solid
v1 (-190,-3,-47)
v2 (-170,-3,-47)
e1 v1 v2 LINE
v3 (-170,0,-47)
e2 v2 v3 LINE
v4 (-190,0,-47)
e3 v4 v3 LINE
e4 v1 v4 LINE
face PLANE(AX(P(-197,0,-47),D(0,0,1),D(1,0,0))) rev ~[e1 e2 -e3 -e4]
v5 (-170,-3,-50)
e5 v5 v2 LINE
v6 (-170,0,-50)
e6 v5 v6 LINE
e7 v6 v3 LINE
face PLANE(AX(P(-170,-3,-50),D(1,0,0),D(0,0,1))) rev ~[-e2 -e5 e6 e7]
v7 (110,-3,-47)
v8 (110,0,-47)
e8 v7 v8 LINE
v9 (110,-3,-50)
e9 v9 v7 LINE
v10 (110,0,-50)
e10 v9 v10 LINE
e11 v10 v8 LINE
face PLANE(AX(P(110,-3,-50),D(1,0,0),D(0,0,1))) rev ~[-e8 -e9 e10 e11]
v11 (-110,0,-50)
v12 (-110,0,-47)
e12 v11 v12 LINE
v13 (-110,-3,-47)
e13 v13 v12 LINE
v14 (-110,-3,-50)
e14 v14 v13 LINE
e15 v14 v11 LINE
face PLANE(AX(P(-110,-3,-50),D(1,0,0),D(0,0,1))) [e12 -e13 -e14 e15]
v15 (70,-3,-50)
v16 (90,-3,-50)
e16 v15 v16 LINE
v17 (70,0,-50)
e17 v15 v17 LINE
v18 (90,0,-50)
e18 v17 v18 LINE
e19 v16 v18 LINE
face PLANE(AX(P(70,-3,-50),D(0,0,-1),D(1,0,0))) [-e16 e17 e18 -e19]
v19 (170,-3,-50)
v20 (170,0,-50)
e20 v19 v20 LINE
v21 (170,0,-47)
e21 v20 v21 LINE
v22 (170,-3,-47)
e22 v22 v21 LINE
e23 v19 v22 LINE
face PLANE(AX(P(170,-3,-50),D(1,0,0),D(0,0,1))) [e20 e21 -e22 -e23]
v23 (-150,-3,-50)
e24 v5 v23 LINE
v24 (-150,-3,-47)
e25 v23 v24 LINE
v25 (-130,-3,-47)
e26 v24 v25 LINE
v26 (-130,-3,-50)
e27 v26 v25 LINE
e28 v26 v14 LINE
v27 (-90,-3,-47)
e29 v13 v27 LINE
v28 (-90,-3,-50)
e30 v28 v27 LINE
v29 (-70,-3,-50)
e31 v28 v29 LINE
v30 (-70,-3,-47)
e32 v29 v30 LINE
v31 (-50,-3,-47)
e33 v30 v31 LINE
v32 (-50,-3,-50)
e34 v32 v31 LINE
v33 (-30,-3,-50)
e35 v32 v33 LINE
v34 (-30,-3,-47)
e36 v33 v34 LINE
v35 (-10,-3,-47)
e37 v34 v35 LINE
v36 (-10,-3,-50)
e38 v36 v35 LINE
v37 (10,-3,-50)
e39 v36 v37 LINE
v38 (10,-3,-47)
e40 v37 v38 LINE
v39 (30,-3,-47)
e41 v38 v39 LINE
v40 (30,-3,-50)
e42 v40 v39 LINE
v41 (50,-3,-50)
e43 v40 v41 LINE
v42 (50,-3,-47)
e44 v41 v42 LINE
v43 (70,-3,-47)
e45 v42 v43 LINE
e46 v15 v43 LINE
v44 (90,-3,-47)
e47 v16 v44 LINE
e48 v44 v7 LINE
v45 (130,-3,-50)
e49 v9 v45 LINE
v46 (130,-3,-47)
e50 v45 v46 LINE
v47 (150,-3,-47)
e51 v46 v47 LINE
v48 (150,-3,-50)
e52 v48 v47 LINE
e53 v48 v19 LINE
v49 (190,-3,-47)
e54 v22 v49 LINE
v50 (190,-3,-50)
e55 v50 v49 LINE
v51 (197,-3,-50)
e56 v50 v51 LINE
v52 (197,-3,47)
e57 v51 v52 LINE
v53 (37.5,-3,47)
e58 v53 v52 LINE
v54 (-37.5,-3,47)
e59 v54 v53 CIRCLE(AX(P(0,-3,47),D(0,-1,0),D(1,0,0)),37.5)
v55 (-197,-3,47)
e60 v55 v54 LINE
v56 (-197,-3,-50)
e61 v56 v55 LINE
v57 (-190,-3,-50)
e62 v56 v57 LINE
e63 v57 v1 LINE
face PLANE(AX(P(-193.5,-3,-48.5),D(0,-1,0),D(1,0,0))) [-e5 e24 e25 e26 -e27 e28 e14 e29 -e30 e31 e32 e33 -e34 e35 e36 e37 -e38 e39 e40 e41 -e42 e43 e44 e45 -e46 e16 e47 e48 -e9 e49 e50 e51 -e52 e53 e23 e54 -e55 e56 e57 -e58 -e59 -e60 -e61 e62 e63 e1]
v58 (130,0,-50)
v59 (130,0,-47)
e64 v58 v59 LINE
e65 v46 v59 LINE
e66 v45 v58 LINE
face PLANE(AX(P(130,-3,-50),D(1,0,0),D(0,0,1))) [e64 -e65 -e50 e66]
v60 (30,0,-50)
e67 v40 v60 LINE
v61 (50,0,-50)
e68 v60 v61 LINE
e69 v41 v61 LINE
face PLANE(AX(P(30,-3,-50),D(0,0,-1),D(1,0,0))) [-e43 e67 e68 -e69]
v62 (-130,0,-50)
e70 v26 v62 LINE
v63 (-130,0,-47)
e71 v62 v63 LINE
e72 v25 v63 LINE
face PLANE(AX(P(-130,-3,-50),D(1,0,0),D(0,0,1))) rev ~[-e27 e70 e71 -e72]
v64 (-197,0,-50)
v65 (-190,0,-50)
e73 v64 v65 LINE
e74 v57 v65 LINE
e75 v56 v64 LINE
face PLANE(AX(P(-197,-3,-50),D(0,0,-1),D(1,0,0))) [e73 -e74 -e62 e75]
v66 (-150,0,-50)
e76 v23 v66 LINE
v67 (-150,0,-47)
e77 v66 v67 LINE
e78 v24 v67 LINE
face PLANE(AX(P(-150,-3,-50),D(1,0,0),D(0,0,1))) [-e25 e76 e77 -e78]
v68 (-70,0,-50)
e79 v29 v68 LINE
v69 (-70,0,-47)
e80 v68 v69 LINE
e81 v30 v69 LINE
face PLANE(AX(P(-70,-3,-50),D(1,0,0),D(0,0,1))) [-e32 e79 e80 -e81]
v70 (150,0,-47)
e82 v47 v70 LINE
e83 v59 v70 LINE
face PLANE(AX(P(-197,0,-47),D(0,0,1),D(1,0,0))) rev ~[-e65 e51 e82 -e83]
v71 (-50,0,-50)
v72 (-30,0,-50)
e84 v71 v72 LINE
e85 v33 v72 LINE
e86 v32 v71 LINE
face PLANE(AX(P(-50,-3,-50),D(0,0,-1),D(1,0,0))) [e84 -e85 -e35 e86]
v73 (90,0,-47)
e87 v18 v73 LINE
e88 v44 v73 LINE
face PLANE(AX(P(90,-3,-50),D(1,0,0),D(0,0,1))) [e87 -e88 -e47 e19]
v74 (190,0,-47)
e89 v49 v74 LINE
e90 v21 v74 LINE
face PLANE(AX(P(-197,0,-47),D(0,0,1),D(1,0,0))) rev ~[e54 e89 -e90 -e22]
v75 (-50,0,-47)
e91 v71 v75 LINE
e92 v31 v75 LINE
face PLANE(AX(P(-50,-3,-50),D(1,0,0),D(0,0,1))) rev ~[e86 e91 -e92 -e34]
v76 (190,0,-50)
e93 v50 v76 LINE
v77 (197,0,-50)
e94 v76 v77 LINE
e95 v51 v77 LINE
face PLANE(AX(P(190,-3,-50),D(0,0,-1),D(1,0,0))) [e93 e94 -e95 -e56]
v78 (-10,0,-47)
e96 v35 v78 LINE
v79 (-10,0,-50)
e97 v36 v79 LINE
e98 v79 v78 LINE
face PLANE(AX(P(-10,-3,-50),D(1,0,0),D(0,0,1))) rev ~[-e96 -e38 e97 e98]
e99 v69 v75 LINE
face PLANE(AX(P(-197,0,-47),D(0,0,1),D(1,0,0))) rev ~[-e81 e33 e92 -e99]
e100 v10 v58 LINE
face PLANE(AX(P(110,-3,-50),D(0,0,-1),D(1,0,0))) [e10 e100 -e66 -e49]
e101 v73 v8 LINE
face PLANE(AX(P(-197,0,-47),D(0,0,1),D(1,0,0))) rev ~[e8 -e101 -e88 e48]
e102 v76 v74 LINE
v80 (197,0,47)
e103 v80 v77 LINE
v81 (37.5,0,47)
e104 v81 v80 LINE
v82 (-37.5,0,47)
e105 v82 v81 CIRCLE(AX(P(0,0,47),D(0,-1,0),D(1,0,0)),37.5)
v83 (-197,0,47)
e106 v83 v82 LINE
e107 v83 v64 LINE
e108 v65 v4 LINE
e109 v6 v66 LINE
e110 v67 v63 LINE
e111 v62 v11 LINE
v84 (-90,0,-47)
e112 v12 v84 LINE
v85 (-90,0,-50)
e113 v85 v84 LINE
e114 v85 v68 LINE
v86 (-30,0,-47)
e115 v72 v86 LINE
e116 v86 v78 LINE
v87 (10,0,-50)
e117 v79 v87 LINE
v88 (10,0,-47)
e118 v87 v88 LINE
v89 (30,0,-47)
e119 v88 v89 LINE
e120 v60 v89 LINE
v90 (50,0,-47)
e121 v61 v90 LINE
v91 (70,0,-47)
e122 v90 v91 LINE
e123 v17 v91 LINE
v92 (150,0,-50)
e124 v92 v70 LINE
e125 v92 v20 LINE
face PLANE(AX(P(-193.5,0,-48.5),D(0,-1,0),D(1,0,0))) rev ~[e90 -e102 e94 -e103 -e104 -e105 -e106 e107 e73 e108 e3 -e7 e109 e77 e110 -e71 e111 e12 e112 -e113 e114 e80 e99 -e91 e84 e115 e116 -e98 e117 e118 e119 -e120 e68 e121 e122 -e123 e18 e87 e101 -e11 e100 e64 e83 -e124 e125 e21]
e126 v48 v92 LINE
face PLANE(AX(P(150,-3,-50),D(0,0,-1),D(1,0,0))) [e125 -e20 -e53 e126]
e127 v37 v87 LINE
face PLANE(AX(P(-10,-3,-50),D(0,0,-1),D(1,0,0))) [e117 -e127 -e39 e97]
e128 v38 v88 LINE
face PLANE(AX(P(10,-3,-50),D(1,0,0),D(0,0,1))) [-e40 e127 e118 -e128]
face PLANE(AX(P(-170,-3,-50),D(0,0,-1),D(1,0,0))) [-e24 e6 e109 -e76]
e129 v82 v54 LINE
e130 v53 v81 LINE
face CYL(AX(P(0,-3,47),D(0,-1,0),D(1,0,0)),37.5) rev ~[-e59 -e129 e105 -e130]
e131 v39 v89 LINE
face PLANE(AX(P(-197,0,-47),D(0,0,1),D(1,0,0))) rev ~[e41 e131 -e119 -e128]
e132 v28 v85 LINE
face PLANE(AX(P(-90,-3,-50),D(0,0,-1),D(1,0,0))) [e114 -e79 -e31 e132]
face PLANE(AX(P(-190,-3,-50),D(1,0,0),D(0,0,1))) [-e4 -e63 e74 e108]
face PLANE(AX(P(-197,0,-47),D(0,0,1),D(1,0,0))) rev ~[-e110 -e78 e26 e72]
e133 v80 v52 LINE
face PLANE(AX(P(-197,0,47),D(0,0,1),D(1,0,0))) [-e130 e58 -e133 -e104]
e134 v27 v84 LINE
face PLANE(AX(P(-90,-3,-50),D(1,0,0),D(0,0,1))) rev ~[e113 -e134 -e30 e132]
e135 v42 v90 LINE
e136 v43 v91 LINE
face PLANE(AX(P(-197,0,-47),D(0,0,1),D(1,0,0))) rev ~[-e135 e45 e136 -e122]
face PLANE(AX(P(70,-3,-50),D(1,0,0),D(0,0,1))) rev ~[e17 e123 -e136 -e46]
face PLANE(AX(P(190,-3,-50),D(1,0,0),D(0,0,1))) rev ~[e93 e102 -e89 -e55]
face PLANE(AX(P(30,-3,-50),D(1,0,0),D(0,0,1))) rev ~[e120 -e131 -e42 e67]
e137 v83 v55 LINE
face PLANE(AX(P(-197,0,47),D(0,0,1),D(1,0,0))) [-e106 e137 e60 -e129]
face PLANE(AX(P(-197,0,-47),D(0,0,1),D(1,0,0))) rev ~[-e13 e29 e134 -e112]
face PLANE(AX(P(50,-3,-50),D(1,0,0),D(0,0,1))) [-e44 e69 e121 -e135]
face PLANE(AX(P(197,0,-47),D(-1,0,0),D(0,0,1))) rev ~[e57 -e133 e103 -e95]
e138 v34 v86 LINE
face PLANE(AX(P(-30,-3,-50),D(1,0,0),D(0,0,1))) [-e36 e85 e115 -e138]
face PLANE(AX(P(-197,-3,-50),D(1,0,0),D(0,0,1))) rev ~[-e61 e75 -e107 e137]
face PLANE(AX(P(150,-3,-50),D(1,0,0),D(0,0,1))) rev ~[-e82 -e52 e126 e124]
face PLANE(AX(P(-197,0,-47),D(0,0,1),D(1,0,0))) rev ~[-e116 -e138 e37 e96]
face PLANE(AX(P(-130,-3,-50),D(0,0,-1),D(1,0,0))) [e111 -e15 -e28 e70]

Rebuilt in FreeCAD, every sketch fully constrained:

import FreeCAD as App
import Part
import Sketcher
Q = App.Units.Quantity

doc = App.newDocument("Part")
body = doc.addObject("PartDesign::Body", "Body")

# Sketch on XZ plane
sketch1 = body.newObject("Sketcher::SketchObject", "Sketch")
sketch1.AttachmentSupport = (doc.getObject("XZ_Plane"), [""])
sketch1.MapMode = "FlatFace"
sketch1.addGeometry(Part.LineSegment(App.Vector(-197, 47, 0), App.Vector(-197, -47, 0)), False)
sketch1.addGeometry(Part.LineSegment(App.Vector(-197, -47, 0), App.Vector(197, -47, 0)), False)
sketch1.addGeometry(Part.LineSegment(App.Vector(197, -47, 0), App.Vector(197, 47, 0)), False)
sketch1.addGeometry(Part.LineSegment(App.Vector(197, 47, 0), App.Vector(-197, 47, 0)), False)
sketch1.addConstraint(Sketcher.Constraint("Coincident", 0, 2, 1, 1))
sketch1.addConstraint(Sketcher.Constraint("Coincident", 1, 2, 2, 1))
sketch1.addConstraint(Sketcher.Constraint("Coincident", 2, 2, 3, 1))
sketch1.addConstraint(Sketcher.Constraint("Coincident", 3, 2, 0, 1))
sketch1.addConstraint(Sketcher.Constraint("Vertical", 0))
sketch1.addConstraint(Sketcher.Constraint("Horizontal", 1))
sketch1.addConstraint(Sketcher.Constraint("Vertical", 2))
sketch1.addConstraint(Sketcher.Constraint("Horizontal", 3))
sketch1.addConstraint(Sketcher.Constraint("Symmetric", 0, 2, 2, 2, -1, 1))
sketch1.addConstraint(Sketcher.Constraint("DistanceX", 1, 1, 1, 2, Q("394 mm")))
sketch1.addConstraint(Sketcher.Constraint("DistanceY", 0, 2, 0, 1, Q("94 mm")))
pad1 = body.newObject("PartDesign::Pad", "Pad")
pad1.Profile = sketch1
pad1.Length = 3

# Sketch on XZ plane
sketch2 = body.newObject("Sketcher::SketchObject", "Sketch001")
sketch2.AttachmentSupport = (doc.getObject("XZ_Plane"), [""])
sketch2.MapMode = "FlatFace"
sketch2.AttachmentOffset = App.Placement(App.Vector(0, 0, 3), App.Rotation())
sketch2.addGeometry(Part.LineSegment(App.Vector(-197, -47, 0), App.Vector(-197, -50, 0)), False)
sketch2.addGeometry(Part.LineSegment(App.Vector(-197, -50, 0), App.Vector(-190, -50, 0)), False)
sketch2.addGeometry(Part.LineSegment(App.Vector(-190, -50, 0), App.Vector(-190, -47, 0)), False)
sketch2.addGeometry(Part.LineSegment(App.Vector(-190, -47, 0), App.Vector(-197, -47, 0)), False)
sketch2.addGeometry(Part.LineSegment(App.Vector(190, -47, 0), App.Vector(190, -50, 0)), False)
sketch2.addGeometry(Part.LineSegment(App.Vector(190, -50, 0), App.Vector(197, -50, 0)), False)
sketch2.addGeometry(Part.LineSegment(App.Vector(197, -50, 0), App.Vector(197, -47, 0)), False)
sketch2.addGeometry(Part.LineSegment(App.Vector(197, -47, 0), App.Vector(190, -47, 0)), False)
sketch2.addGeometry(Part.LineSegment(App.Vector(-170, -47, 0), App.Vector(-170, -50, 0)), False)
sketch2.addGeometry(Part.LineSegment(App.Vector(-170, -50, 0), App.Vector(-150, -50, 0)), False)
sketch2.addGeometry(Part.LineSegment(App.Vector(-150, -50, 0), App.Vector(-150, -47, 0)), False)
sketch2.addGeometry(Part.LineSegment(App.Vector(-150, -47, 0), App.Vector(-170, -47, 0)), False)
sketch2.addGeometry(Part.LineSegment(App.Vector(-130, -47, 0), App.Vector(-130, -50, 0)), False)
sketch2.addGeometry(Part.LineSegment(App.Vector(-130, -50, 0), App.Vector(-110, -50, 0)), False)
sketch2.addGeometry(Part.LineSegment(App.Vector(-110, -50, 0), App.Vector(-110, -47, 0)), False)
sketch2.addGeometry(Part.LineSegment(App.Vector(-110, -47, 0), App.Vector(-130, -47, 0)), False)
sketch2.addGeometry(Part.LineSegment(App.Vector(-90, -47, 0), App.Vector(-90, -50, 0)), False)
sketch2.addGeometry(Part.LineSegment(App.Vector(-90, -50, 0), App.Vector(-70, -50, 0)), False)
sketch2.addGeometry(Part.LineSegment(App.Vector(-70, -50, 0), App.Vector(-70, -47, 0)), False)
sketch2.addGeometry(Part.LineSegment(App.Vector(-70, -47, 0), App.Vector(-90, -47, 0)), False)
sketch2.addGeometry(Part.LineSegment(App.Vector(-50, -47, 0), App.Vector(-50, -50, 0)), False)
sketch2.addGeometry(Part.LineSegment(App.Vector(-50, -50, 0), App.Vector(-30, -50, 0)), False)
sketch2.addGeometry(Part.LineSegment(App.Vector(-30, -50, 0), App.Vector(-30, -47, 0)), False)
sketch2.addGeometry(Part.LineSegment(App.Vector(-30, -47, 0), App.Vector(-50, -47, 0)), False)
sketch2.addGeometry(Part.LineSegment(App.Vector(-10, -47, 0), App.Vector(-10, -50, 0)), False)
sketch2.addGeometry(Part.LineSegment(App.Vector(-10, -50, 0), App.Vector(10, -50, 0)), False)
sketch2.addGeometry(Part.LineSegment(App.Vector(10, -50, 0), App.Vector(10, -47, 0)), False)
sketch2.addGeometry(Part.LineSegment(App.Vector(10, -47, 0), App.Vector(-10, -47, 0)), False)
sketch2.addGeometry(Part.LineSegment(App.Vector(30, -47, 0), App.Vector(30, -50, 0)), False)
sketch2.addGeometry(Part.LineSegment(App.Vector(30, -50, 0), App.Vector(50, -50, 0)), False)
sketch2.addGeometry(Part.LineSegment(App.Vector(50, -50, 0), App.Vector(50, -47, 0)), False)
sketch2.addGeometry(Part.LineSegment(App.Vector(50, -47, 0), App.Vector(30, -47, 0)), False)
sketch2.addGeometry(Part.LineSegment(App.Vector(70, -47, 0), App.Vector(70, -50, 0)), False)
sketch2.addGeometry(Part.LineSegment(App.Vector(70, -50, 0), App.Vector(90, -50, 0)), False)
sketch2.addGeometry(Part.LineSegment(App.Vector(90, -50, 0), App.Vector(90, -47, 0)), False)
sketch2.addGeometry(Part.LineSegment(App.Vector(90, -47, 0), App.Vector(70, -47, 0)), False)
sketch2.addGeometry(Part.LineSegment(App.Vector(110, -47, 0), App.Vector(110, -50, 0)), False)
sketch2.addGeometry(Part.LineSegment(App.Vector(110, -50, 0), App.Vector(130, -50, 0)), False)
sketch2.addGeometry(Part.LineSegment(App.Vector(130, -50, 0), App.Vector(130, -47, 0)), False)
sketch2.addGeometry(Part.LineSegment(App.Vector(130, -47, 0), App.Vector(110, -47, 0)), False)
sketch2.addGeometry(Part.LineSegment(App.Vector(150, -47, 0), App.Vector(150, -50, 0)), False)
sketch2.addGeometry(Part.LineSegment(App.Vector(150, -50, 0), App.Vector(170, -50, 0)), False)
sketch2.addGeometry(Part.LineSegment(App.Vector(170, -50, 0), App.Vector(170, -47, 0)), False)
sketch2.addGeometry(Part.LineSegment(App.Vector(170, -47, 0), App.Vector(150, -47, 0)), False)
sketch2.addConstraint(Sketcher.Constraint("Coincident", 0, 2, 1, 1))
sketch2.addConstraint(Sketcher.Constraint("Coincident", 1, 2, 2, 1))
sketch2.addConstraint(Sketcher.Constraint("Coincident", 2, 2, 3, 1))
sketch2.addConstraint(Sketcher.Constraint("Coincident", 3, 2, 0, 1))
sketch2.addConstraint(Sketcher.Constraint("Coincident", 4, 2, 5, 1))
sketch2.addConstraint(Sketcher.Constraint("Coincident", 5, 2, 6, 1))
sketch2.addConstraint(Sketcher.Constraint("Coincident", 6, 2, 7, 1))
sketch2.addConstraint(Sketcher.Constraint("Coincident", 7, 2, 4, 1))
sketch2.addConstraint(Sketcher.Constraint("Coincident", 8, 2, 9, 1))
sketch2.addConstraint(Sketcher.Constraint("Coincident", 9, 2, 10, 1))
sketch2.addConstraint(Sketcher.Constraint("Coincident", 10, 2, 11, 1))
sketch2.addConstraint(Sketcher.Constraint("Coincident", 11, 2, 8, 1))
sketch2.addConstraint(Sketcher.Constraint("Coincident", 12, 2, 13, 1))
sketch2.addConstraint(Sketcher.Constraint("Coincident", 13, 2, 14, 1))
sketch2.addConstraint(Sketcher.Constraint("Coincident", 14, 2, 15, 1))
sketch2.addConstraint(Sketcher.Constraint("Coincident", 15, 2, 12, 1))
sketch2.addConstraint(Sketcher.Constraint("Coincident", 16, 2, 17, 1))
sketch2.addConstraint(Sketcher.Constraint("Coincident", 17, 2, 18, 1))
sketch2.addConstraint(Sketcher.Constraint("Coincident", 18, 2, 19, 1))
sketch2.addConstraint(Sketcher.Constraint("Coincident", 19, 2, 16, 1))
sketch2.addConstraint(Sketcher.Constraint("Coincident", 20, 2, 21, 1))
sketch2.addConstraint(Sketcher.Constraint("Coincident", 21, 2, 22, 1))
sketch2.addConstraint(Sketcher.Constraint("Coincident", 22, 2, 23, 1))
sketch2.addConstraint(Sketcher.Constraint("Coincident", 23, 2, 20, 1))
sketch2.addConstraint(Sketcher.Constraint("Coincident", 24, 2, 25, 1))
sketch2.addConstraint(Sketcher.Constraint("Coincident", 25, 2, 26, 1))
sketch2.addConstraint(Sketcher.Constraint("Coincident", 26, 2, 27, 1))
sketch2.addConstraint(Sketcher.Constraint("Coincident", 27, 2, 24, 1))
sketch2.addConstraint(Sketcher.Constraint("Coincident", 28, 2, 29, 1))
sketch2.addConstraint(Sketcher.Constraint("Coincident", 29, 2, 30, 1))
sketch2.addConstraint(Sketcher.Constraint("Coincident", 30, 2, 31, 1))
sketch2.addConstraint(Sketcher.Constraint("Coincident", 31, 2, 28, 1))
sketch2.addConstraint(Sketcher.Constraint("Coincident", 32, 2, 33, 1))
sketch2.addConstraint(Sketcher.Constraint("Coincident", 33, 2, 34, 1))
sketch2.addConstraint(Sketcher.Constraint("Coincident", 34, 2, 35, 1))
sketch2.addConstraint(Sketcher.Constraint("Coincident", 35, 2, 32, 1))
sketch2.addConstraint(Sketcher.Constraint("Coincident", 36, 2, 37, 1))
sketch2.addConstraint(Sketcher.Constraint("Coincident", 37, 2, 38, 1))
sketch2.addConstraint(Sketcher.Constraint("Coincident", 38, 2, 39, 1))
sketch2.addConstraint(Sketcher.Constraint("Coincident", 39, 2, 36, 1))
sketch2.addConstraint(Sketcher.Constraint("Coincident", 40, 2, 41, 1))
sketch2.addConstraint(Sketcher.Constraint("Coincident", 41, 2, 42, 1))
sketch2.addConstraint(Sketcher.Constraint("Coincident", 42, 2, 43, 1))
sketch2.addConstraint(Sketcher.Constraint("Coincident", 43, 2, 40, 1))
sketch2.addConstraint(Sketcher.Constraint("Vertical", 0))
sketch2.addConstraint(Sketcher.Constraint("Horizontal", 1))
sketch2.addConstraint(Sketcher.Constraint("Vertical", 2))
sketch2.addConstraint(Sketcher.Constraint("Horizontal", 3))
sketch2.addConstraint(Sketcher.Constraint("Vertical", 4))
sketch2.addConstraint(Sketcher.Constraint("Horizontal", 5))
sketch2.addConstraint(Sketcher.Constraint("Vertical", 6))
sketch2.addConstraint(Sketcher.Constraint("Horizontal", 7))
sketch2.addConstraint(Sketcher.Constraint("Vertical", 8))
sketch2.addConstraint(Sketcher.Constraint("Horizontal", 9))
sketch2.addConstraint(Sketcher.Constraint("Vertical", 10))
sketch2.addConstraint(Sketcher.Constraint("Horizontal", 11))
sketch2.addConstraint(Sketcher.Constraint("Vertical", 12))
sketch2.addConstraint(Sketcher.Constraint("Horizontal", 13))
sketch2.addConstraint(Sketcher.Constraint("Vertical", 14))
sketch2.addConstraint(Sketcher.Constraint("Horizontal", 15))
sketch2.addConstraint(Sketcher.Constraint("Vertical", 16))
sketch2.addConstraint(Sketcher.Constraint("Horizontal", 17))
sketch2.addConstraint(Sketcher.Constraint("Vertical", 18))
sketch2.addConstraint(Sketcher.Constraint("Horizontal", 19))
sketch2.addConstraint(Sketcher.Constraint("Vertical", 20))
sketch2.addConstraint(Sketcher.Constraint("Horizontal", 21))
sketch2.addConstraint(Sketcher.Constraint("Vertical", 22))
sketch2.addConstraint(Sketcher.Constraint("Horizontal", 23))
sketch2.addConstraint(Sketcher.Constraint("Vertical", 24))
sketch2.addConstraint(Sketcher.Constraint("Horizontal", 25))
sketch2.addConstraint(Sketcher.Constraint("Vertical", 26))
sketch2.addConstraint(Sketcher.Constraint("Horizontal", 27))
sketch2.addConstraint(Sketcher.Constraint("Vertical", 28))
sketch2.addConstraint(Sketcher.Constraint("Horizontal", 29))
sketch2.addConstraint(Sketcher.Constraint("Vertical", 30))
sketch2.addConstraint(Sketcher.Constraint("Horizontal", 31))
sketch2.addConstraint(Sketcher.Constraint("Vertical", 32))
sketch2.addConstraint(Sketcher.Constraint("Horizontal", 33))
sketch2.addConstraint(Sketcher.Constraint("Vertical", 34))
sketch2.addConstraint(Sketcher.Constraint("Horizontal", 35))
sketch2.addConstraint(Sketcher.Constraint("Vertical", 36))
sketch2.addConstraint(Sketcher.Constraint("Horizontal", 37))
sketch2.addConstraint(Sketcher.Constraint("Vertical", 38))
sketch2.addConstraint(Sketcher.Constraint("Horizontal", 39))
sketch2.addConstraint(Sketcher.Constraint("Vertical", 40))
sketch2.addConstraint(Sketcher.Constraint("Horizontal", 41))
sketch2.addConstraint(Sketcher.Constraint("Vertical", 42))
sketch2.addConstraint(Sketcher.Constraint("Horizontal", 43))
sketch2.addConstraint(Sketcher.Constraint("Symmetric", 1, 2, 4, 2, -2))
sketch2.addConstraint(Sketcher.Constraint("Symmetric", 3, 2, 6, 2, -2))
sketch2.addConstraint(Sketcher.Constraint("Symmetric", 21, 2, 28, 2, -2))
sketch2.addConstraint(Sketcher.Constraint("Symmetric", 23, 2, 30, 2, -2))
sketch2.addConstraint(Sketcher.Constraint("Symmetric", 17, 2, 32, 2, -2))
sketch2.addConstraint(Sketcher.Constraint("Symmetric", 19, 2, 34, 2, -2))
sketch2.addConstraint(Sketcher.Constraint("Symmetric", 13, 2, 36, 2, -2))
sketch2.addConstraint(Sketcher.Constraint("Symmetric", 15, 2, 38, 2, -2))
sketch2.addConstraint(Sketcher.Constraint("Symmetric", 9, 2, 40, 2, -2))
sketch2.addConstraint(Sketcher.Constraint("Symmetric", 11, 2, 42, 2, -2))
sketch2.addConstraint(Sketcher.Constraint("Horizontal", 5, 2, 8, 2))
sketch2.addConstraint(Sketcher.Constraint("Horizontal", 7, 2, 10, 2))
sketch2.addConstraint(Sketcher.Constraint("Horizontal", 9, 2, 12, 2))
sketch2.addConstraint(Sketcher.Constraint("Horizontal", 11, 2, 14, 2))
sketch2.addConstraint(Sketcher.Constraint("Horizontal", 13, 2, 16, 2))
sketch2.addConstraint(Sketcher.Constraint("Horizontal", 15, 2, 18, 2))
sketch2.addConstraint(Sketcher.Constraint("Horizontal", 17, 2, 20, 2))
sketch2.addConstraint(Sketcher.Constraint("Horizontal", 19, 2, 22, 2))
sketch2.addConstraint(Sketcher.Constraint("Horizontal", 21, 2, 24, 2))
sketch2.addConstraint(Sketcher.Constraint("Horizontal", 23, 2, 26, 2))
sketch2.addConstraint(Sketcher.Constraint("Equal", 11, 13))
sketch2.addConstraint(Sketcher.Constraint("Equal", 15, 17))
sketch2.addConstraint(Sketcher.Constraint("Equal", 19, 21))
sketch2.addConstraint(Sketcher.Constraint("Equal", 23, 25))
sketch2.addConstraint(Sketcher.Constraint("DistanceX", 1, 1, 1, 2, Q("7 mm")))
sketch2.addConstraint(Sketcher.Constraint("DistanceX", 9, 1, 9, 2, Q("20 mm")))
sketch2.addConstraint(Sketcher.Constraint("DistanceY", 0, 2, 0, 1, Q("3 mm")))
sketch2.addConstraint(Sketcher.Constraint("DistanceX", 0, 2, -1, 1, Q("197 mm")))
sketch2.addConstraint(Sketcher.Constraint("DistanceY", 0, 2, -1, 1, Q("50 mm")))
sketch2.addConstraint(Sketcher.Constraint("DistanceX", 8, 2, -1, 1, Q("170 mm")))
sketch2.addConstraint(Sketcher.Constraint("DistanceX", 12, 2, -1, 1, Q("130 mm")))
sketch2.addConstraint(Sketcher.Constraint("DistanceX", 16, 2, -1, 1, Q("90 mm")))
sketch2.addConstraint(Sketcher.Constraint("DistanceX", 20, 2, -1, 1, Q("50 mm")))
sketch2.addConstraint(Sketcher.Constraint("DistanceX", 24, 2, -1, 1, Q("10 mm")))
pad2 = body.newObject("PartDesign::Pad", "Pad001")
pad2.Profile = sketch2
pad2.Length = 3
pad2.Reversed = True

# Sketch on XZ plane
sketch3 = body.newObject("Sketcher::SketchObject", "Sketch002")
sketch3.AttachmentSupport = (doc.getObject("XZ_Plane"), [""])
sketch3.MapMode = "FlatFace"
sketch3.AttachmentOffset = App.Placement(App.Vector(0, 0, 3), App.Rotation())
sketch3.addGeometry(Part.Circle(App.Vector(0, 47, 0), App.Vector(0, 0, 1), 38), False)
sketch3.addConstraint(Sketcher.Constraint("PointOnObject", 0, 3, -2))
sketch3.addConstraint(Sketcher.Constraint("Diameter", 0, Q("75 mm")))
sketch3.addConstraint(Sketcher.Constraint("DistanceY", -1, 1, 0, 3, Q("47 mm")))
pocket1 = body.newObject("PartDesign::Pocket", "Pocket")
pocket1.Profile = sketch3
pocket1.Length = 25

doc.recompute()
